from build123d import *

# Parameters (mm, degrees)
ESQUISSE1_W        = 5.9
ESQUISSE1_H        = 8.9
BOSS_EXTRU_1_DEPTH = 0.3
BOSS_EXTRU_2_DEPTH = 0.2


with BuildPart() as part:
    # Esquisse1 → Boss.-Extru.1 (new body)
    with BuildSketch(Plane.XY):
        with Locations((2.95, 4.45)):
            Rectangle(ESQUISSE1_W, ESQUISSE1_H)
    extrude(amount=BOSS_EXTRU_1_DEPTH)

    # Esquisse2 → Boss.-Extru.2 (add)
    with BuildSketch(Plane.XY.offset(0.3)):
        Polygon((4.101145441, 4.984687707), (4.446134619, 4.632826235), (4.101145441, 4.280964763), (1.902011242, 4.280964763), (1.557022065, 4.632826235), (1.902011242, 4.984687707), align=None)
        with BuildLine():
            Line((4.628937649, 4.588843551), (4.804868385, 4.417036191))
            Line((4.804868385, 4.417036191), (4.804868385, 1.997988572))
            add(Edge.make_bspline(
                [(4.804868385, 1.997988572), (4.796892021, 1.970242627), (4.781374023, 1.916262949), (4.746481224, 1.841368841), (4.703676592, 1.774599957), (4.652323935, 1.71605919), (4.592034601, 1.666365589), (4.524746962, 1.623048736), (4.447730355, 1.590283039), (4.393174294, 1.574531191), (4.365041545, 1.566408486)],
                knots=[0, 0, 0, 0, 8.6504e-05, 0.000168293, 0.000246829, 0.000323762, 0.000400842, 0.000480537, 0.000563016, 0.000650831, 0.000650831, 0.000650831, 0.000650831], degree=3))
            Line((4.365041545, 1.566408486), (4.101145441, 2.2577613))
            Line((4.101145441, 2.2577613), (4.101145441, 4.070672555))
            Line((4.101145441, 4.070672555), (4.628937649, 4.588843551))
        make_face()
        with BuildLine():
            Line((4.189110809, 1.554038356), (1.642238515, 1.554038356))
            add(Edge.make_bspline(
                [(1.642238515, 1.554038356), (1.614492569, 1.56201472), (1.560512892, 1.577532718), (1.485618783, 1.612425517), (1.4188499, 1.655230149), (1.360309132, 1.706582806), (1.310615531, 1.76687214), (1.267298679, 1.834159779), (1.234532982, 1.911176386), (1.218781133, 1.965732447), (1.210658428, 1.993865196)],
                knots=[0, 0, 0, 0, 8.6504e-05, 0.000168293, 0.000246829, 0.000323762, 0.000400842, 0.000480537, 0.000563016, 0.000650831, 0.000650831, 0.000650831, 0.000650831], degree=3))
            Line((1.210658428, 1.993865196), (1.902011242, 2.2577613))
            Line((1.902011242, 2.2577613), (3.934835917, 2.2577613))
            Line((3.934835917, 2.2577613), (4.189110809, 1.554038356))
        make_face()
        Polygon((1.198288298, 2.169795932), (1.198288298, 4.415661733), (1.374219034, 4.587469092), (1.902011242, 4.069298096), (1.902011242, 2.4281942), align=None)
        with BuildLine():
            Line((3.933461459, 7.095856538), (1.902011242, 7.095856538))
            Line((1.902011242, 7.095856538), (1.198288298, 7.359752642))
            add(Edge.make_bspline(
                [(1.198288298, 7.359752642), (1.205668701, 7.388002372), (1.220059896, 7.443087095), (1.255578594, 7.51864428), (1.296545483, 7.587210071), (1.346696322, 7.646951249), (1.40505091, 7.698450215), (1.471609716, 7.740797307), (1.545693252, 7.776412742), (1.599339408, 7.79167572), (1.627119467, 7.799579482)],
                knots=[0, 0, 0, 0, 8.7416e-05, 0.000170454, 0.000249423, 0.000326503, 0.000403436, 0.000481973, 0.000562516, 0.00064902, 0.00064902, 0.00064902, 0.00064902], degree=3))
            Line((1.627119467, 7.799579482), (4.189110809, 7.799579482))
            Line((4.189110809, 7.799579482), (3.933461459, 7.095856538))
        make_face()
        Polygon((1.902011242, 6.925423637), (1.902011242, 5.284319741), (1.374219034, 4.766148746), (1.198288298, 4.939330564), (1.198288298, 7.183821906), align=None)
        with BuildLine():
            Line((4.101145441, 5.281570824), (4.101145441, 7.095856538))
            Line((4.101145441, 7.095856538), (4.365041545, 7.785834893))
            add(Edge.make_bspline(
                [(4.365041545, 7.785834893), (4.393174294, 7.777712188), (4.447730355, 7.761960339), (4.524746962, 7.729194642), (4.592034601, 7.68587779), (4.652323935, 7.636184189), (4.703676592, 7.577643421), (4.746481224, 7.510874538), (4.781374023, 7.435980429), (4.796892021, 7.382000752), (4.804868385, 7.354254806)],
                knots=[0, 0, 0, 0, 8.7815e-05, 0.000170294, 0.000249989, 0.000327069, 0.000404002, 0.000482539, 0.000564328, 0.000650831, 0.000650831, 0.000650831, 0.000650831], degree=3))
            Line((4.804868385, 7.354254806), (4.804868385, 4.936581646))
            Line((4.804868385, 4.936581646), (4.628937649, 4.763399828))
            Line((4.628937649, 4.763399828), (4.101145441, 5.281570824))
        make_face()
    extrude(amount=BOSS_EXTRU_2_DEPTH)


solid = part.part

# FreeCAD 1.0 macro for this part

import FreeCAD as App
import Part
import Sketcher
from FreeCAD import Vector

doc = App.newDocument("Part")
body = doc.addObject("PartDesign::Body", "Body")

# Sketch on XY plane
sketch1 = body.newObject("Sketcher::SketchObject", "Sketch")
sketch1.AttachmentSupport = (doc.getObject("XY_Plane"), [""])
sketch1.MapMode = "FlatFace"
sketch1.addGeometry(Part.LineSegment(Vector(0, 9, 0), Vector(0, 0, 0)), False)
sketch1.addGeometry(Part.LineSegment(Vector(0, 0, 0), Vector(6, 0, 0)), False)
sketch1.addGeometry(Part.LineSegment(Vector(6, 0, 0), Vector(6, 9, 0)), False)
sketch1.addGeometry(Part.LineSegment(Vector(6, 9, 0), Vector(0, 9, 0)), False)
sketch1.addConstraint(Sketcher.Constraint("Coincident", 0, 2, 1, 1))
sketch1.addConstraint(Sketcher.Constraint("Coincident", 1, 2, 2, 1))
sketch1.addConstraint(Sketcher.Constraint("Coincident", 2, 2, 3, 1))
sketch1.addConstraint(Sketcher.Constraint("Coincident", 3, 2, 0, 1))
sketch1.addConstraint(Sketcher.Constraint("Vertical", 0))
sketch1.addConstraint(Sketcher.Constraint("Horizontal", 1))
sketch1.addConstraint(Sketcher.Constraint("Vertical", 2))
sketch1.addConstraint(Sketcher.Constraint("Horizontal", 3))
sketch1.addConstraint(Sketcher.Constraint("Coincident", 0, 2, -1, 1))
sketch1.addConstraint(Sketcher.Constraint("DistanceX", 1, 1, 1, 2, 5.9))
sketch1.addConstraint(Sketcher.Constraint("DistanceY", 0, 2, 0, 1, 8.9))
pad1 = body.newObject("PartDesign::Pad", "Pad")
pad1.Profile = sketch1
pad1.Length = 0.3

# Sketch on XY plane
sketch2 = body.newObject("Sketcher::SketchObject", "Sketch001")
sketch2.AttachmentSupport = (doc.getObject("XY_Plane"), [""])
sketch2.MapMode = "FlatFace"
sketch2.AttachmentOffset = App.Placement(Vector(0, 0, 0.3), App.Rotation())
sketch2.addGeometry(Part.LineSegment(Vector(4.446135, 4.632826, 0), Vector(4.101145, 4.984688, 0)), False)
sketch2.addGeometry(Part.LineSegment(Vector(4.101145, 4.984688, 0), Vector(1.902011, 4.984688, 0)), False)
sketch2.addGeometry(Part.LineSegment(Vector(1.902011, 4.984688, 0), Vector(1.557022, 4.632826, 0)), False)
sketch2.addGeometry(Part.LineSegment(Vector(1.557022, 4.632826, 0), Vector(1.902011, 4.280965, 0)), False)
sketch2.addGeometry(Part.LineSegment(Vector(1.902011, 4.280965, 0), Vector(4.101145, 4.280965, 0)), False)
sketch2.addGeometry(Part.LineSegment(Vector(4.101145, 4.280965, 0), Vector(4.446135, 4.632826, 0)), False)
sketch2.addGeometry(Part.LineSegment(Vector(4.804868, 4.417036, 0), Vector(4.628938, 4.588844, 0)), False)
sketch2.addGeometry(Part.LineSegment(Vector(4.628938, 4.588844, 0), Vector(4.101145, 4.070673, 0)), False)
sketch2.addGeometry(Part.LineSegment(Vector(4.101145, 4.070673, 0), Vector(4.101145, 2.257761, 0)), False)
sketch2.addGeometry(Part.LineSegment(Vector(4.101145, 2.257761, 0), Vector(4.365042, 1.566408, 0)), False)
sketch2.addGeometry(Part.BSplineCurve([Vector(4.804868, 1.997989, 0), Vector(4.796892, 1.970243, 0), Vector(4.781374, 1.916263, 0), Vector(4.746481, 1.841369, 0), Vector(4.703677, 1.7746, 0), Vector(4.652324, 1.716059, 0), Vector(4.592035, 1.666366, 0), Vector(4.524747, 1.623049, 0), Vector(4.44773, 1.590283, 0), Vector(4.393174, 1.574531, 0), Vector(4.365042, 1.566408, 0)], [4, 1, 1, 1, 1, 1, 1, 1, 4], [0, 0.000086504, 0.000168293, 0.000246829, 0.000323762, 0.000400842, 0.000480537, 0.000563016, 0.000650831], False, 3, [1, 1, 1, 1, 1, 1, 1, 1, 1, 1, 1], False), False)
sketch2.addGeometry(Part.LineSegment(Vector(4.804868, 1.997989, 0), Vector(4.804868, 4.417036, 0)), False)
sketch2.addGeometry(Part.LineSegment(Vector(1.642239, 1.554038, 0), Vector(4.189111, 1.554038, 0)), False)
sketch2.addGeometry(Part.LineSegment(Vector(4.189111, 1.554038, 0), Vector(3.934836, 2.257761, 0)), False)
sketch2.addGeometry(Part.LineSegment(Vector(3.934836, 2.257761, 0), Vector(1.902011, 2.257761, 0)), False)
sketch2.addGeometry(Part.LineSegment(Vector(1.902011, 2.257761, 0), Vector(1.210658, 1.993865, 0)), False)
sketch2.addGeometry(Part.BSplineCurve([Vector(1.642239, 1.554038, 0), Vector(1.614493, 1.562015, 0), Vector(1.560513, 1.577533, 0), Vector(1.485619, 1.612426, 0), Vector(1.41885, 1.65523, 0), Vector(1.360309, 1.706583, 0), Vector(1.310616, 1.766872, 0), Vector(1.267299, 1.83416, 0), Vector(1.234533, 1.911176, 0), Vector(1.218781, 1.965732, 0), Vector(1.210658, 1.993865, 0)], [4, 1, 1, 1, 1, 1, 1, 1, 4], [0, 0.000086504, 0.000168293, 0.000246829, 0.000323762, 0.000400842, 0.000480537, 0.000563016, 0.000650831], False, 3, [1, 1, 1, 1, 1, 1, 1, 1, 1, 1, 1], False), False)
sketch2.addGeometry(Part.LineSegment(Vector(1.198288, 4.415662, 0), Vector(1.198288, 2.169796, 0)), False)
sketch2.addGeometry(Part.LineSegment(Vector(1.198288, 2.169796, 0), Vector(1.902011, 2.428194, 0)), False)
sketch2.addGeometry(Part.LineSegment(Vector(1.902011, 2.428194, 0), Vector(1.902011, 4.069298, 0)), False)
sketch2.addGeometry(Part.LineSegment(Vector(1.902011, 4.069298, 0), Vector(1.374219, 4.587469, 0)), False)
sketch2.addGeometry(Part.LineSegment(Vector(1.374219, 4.587469, 0), Vector(1.198288, 4.415662, 0)), False)
sketch2.addGeometry(Part.LineSegment(Vector(1.902011, 7.095857, 0), Vector(3.933461, 7.095857, 0)), False)
sketch2.addGeometry(Part.LineSegment(Vector(3.933461, 7.095857, 0), Vector(4.189111, 7.799579, 0)), False)
sketch2.addGeometry(Part.LineSegment(Vector(4.189111, 7.799579, 0), Vector(1.627119, 7.799579, 0)), False)
sketch2.addGeometry(Part.BSplineCurve([Vector(1.198288, 7.359753, 0), Vector(1.205669, 7.388002, 0), Vector(1.22006, 7.443087, 0), Vector(1.255579, 7.518644, 0), Vector(1.296545, 7.58721, 0), Vector(1.346696, 7.646951, 0), Vector(1.405051, 7.69845, 0), Vector(1.47161, 7.740797, 0), Vector(1.545693, 7.776413, 0), Vector(1.599339, 7.791676, 0), Vector(1.627119, 7.799579, 0)], [4, 1, 1, 1, 1, 1, 1, 1, 4], [0, 0.000087416, 0.000170454, 0.000249423, 0.000326503, 0.000403436, 0.000481973, 0.000562516, 0.00064902], False, 3, [1, 1, 1, 1, 1, 1, 1, 1, 1, 1, 1], False), False)
sketch2.addGeometry(Part.LineSegment(Vector(1.198288, 7.359753, 0), Vector(1.902011, 7.095857, 0)), False)
sketch2.addGeometry(Part.LineSegment(Vector(1.902011, 5.28432, 0), Vector(1.902011, 6.925424, 0)), False)
sketch2.addGeometry(Part.LineSegment(Vector(1.902011, 6.925424, 0), Vector(1.198288, 7.183822, 0)), False)
sketch2.addGeometry(Part.LineSegment(Vector(1.198288, 7.183822, 0), Vector(1.198288, 4.939331, 0)), False)
sketch2.addGeometry(Part.LineSegment(Vector(1.198288, 4.939331, 0), Vector(1.374219, 4.766149, 0)), False)
sketch2.addGeometry(Part.LineSegment(Vector(1.374219, 4.766149, 0), Vector(1.902011, 5.28432, 0)), False)
sketch2.addGeometry(Part.LineSegment(Vector(4.101145, 7.095857, 0), Vector(4.101145, 5.281571, 0)), False)
sketch2.addGeometry(Part.LineSegment(Vector(4.101145, 5.281571, 0), Vector(4.628938, 4.7634, 0)), False)
sketch2.addGeometry(Part.LineSegment(Vector(4.628938, 4.7634, 0), Vector(4.804868, 4.936582, 0)), False)
sketch2.addGeometry(Part.LineSegment(Vector(4.804868, 4.936582, 0), Vector(4.804868, 7.354255, 0)), False)
sketch2.addGeometry(Part.BSplineCurve([Vector(4.365042, 7.785835, 0), Vector(4.393174, 7.777712, 0), Vector(4.44773, 7.76196, 0), Vector(4.524747, 7.729195, 0), Vector(4.592035, 7.685878, 0), Vector(4.652324, 7.636184, 0), Vector(4.703677, 7.577643, 0), Vector(4.746481, 7.510875, 0), Vector(4.781374, 7.43598, 0), Vector(4.796892, 7.382001, 0), Vector(4.804868, 7.354255, 0)], [4, 1, 1, 1, 1, 1, 1, 1, 4], [0, 0.000087815, 0.000170294, 0.000249989, 0.000327069, 0.000404002, 0.000482539, 0.000564328, 0.000650831], False, 3, [1, 1, 1, 1, 1, 1, 1, 1, 1, 1, 1], False), False)
sketch2.addGeometry(Part.LineSegment(Vector(4.365042, 7.785835, 0), Vector(4.101145, 7.095857, 0)), False)
sketch2.addConstraint(Sketcher.Constraint("Block", 10))
sketch2.addConstraint(Sketcher.Constraint("Block", 16))
sketch2.addConstraint(Sketcher.Constraint("Block", 25))
sketch2.addConstraint(Sketcher.Constraint("Block", 36))
sketch2.addConstraint(Sketcher.Constraint("Coincident", 0, 2, 1, 1))
sketch2.addConstraint(Sketcher.Constraint("Coincident", 1, 2, 2, 1))
sketch2.addConstraint(Sketcher.Constraint("Coincident", 2, 2, 3, 1))
sketch2.addConstraint(Sketcher.Constraint("Coincident", 3, 2, 4, 1))
sketch2.addConstraint(Sketcher.Constraint("Coincident", 4, 2, 5, 1))
sketch2.addConstraint(Sketcher.Constraint("Coincident", 5, 2, 0, 1))
sketch2.addConstraint(Sketcher.Constraint("Coincident", 6, 2, 7, 1))
sketch2.addConstraint(Sketcher.Constraint("Coincident", 7, 2, 8, 1))
sketch2.addConstraint(Sketcher.Constraint("Coincident", 8, 2, 9, 1))
sketch2.addConstraint(Sketcher.Constraint("Coincident", 9, 2, 10, 2))
sketch2.addConstraint(Sketcher.Constraint("Coincident", 10, 1, 11, 1))
sketch2.addConstraint(Sketcher.Constraint("Coincident", 11, 2, 6, 1))
sketch2.addConstraint(Sketcher.Constraint("Coincident", 12, 2, 13, 1))
sketch2.addConstraint(Sketcher.Constraint("Coincident", 13, 2, 14, 1))
sketch2.addConstraint(Sketcher.Constraint("Coincident", 14, 2, 15, 1))
sketch2.addConstraint(Sketcher.Constraint("Coincident", 15, 2, 16, 2))
sketch2.addConstraint(Sketcher.Constraint("Coincident", 16, 1, 12, 1))
sketch2.addConstraint(Sketcher.Constraint("Coincident", 17, 2, 18, 1))
sketch2.addConstraint(Sketcher.Constraint("Coincident", 18, 2, 19, 1))
sketch2.addConstraint(Sketcher.Constraint("Coincident", 19, 2, 20, 1))
sketch2.addConstraint(Sketcher.Constraint("Coincident", 20, 2, 21, 1))
sketch2.addConstraint(Sketcher.Constraint("Coincident", 21, 2, 17, 1))
sketch2.addConstraint(Sketcher.Constraint("Coincident", 22, 2, 23, 1))
sketch2.addConstraint(Sketcher.Constraint("Coincident", 23, 2, 24, 1))
sketch2.addConstraint(Sketcher.Constraint("Coincident", 24, 2, 25, 2))
sketch2.addConstraint(Sketcher.Constraint("Coincident", 25, 1, 26, 1))
sketch2.addConstraint(Sketcher.Constraint("Coincident", 26, 2, 22, 1))
sketch2.addConstraint(Sketcher.Constraint("Coincident", 27, 2, 28, 1))
sketch2.addConstraint(Sketcher.Constraint("Coincident", 28, 2, 29, 1))
sketch2.addConstraint(Sketcher.Constraint("Coincident", 29, 2, 30, 1))
sketch2.addConstraint(Sketcher.Constraint("Coincident", 30, 2, 31, 1))
sketch2.addConstraint(Sketcher.Constraint("Coincident", 31, 2, 27, 1))
sketch2.addConstraint(Sketcher.Constraint("Coincident", 32, 2, 33, 1))
sketch2.addConstraint(Sketcher.Constraint("Coincident", 33, 2, 34, 1))
sketch2.addConstraint(Sketcher.Constraint("Coincident", 34, 2, 35, 1))
sketch2.addConstraint(Sketcher.Constraint("Coincident", 35, 2, 36, 2))
sketch2.addConstraint(Sketcher.Constraint("Coincident", 36, 1, 37, 1))
sketch2.addConstraint(Sketcher.Constraint("Coincident", 37, 2, 32, 1))
sketch2.addConstraint(Sketcher.Constraint("Horizontal", 1))
sketch2.addConstraint(Sketcher.Constraint("Horizontal", 4))
sketch2.addConstraint(Sketcher.Constraint("Vertical", 8))
sketch2.addConstraint(Sketcher.Constraint("Vertical", 11))
sketch2.addConstraint(Sketcher.Constraint("Horizontal", 12))
sketch2.addConstraint(Sketcher.Constraint("Horizontal", 14))
sketch2.addConstraint(Sketcher.Constraint("Vertical", 17))
sketch2.addConstraint(Sketcher.Constraint("Vertical", 19))
sketch2.addConstraint(Sketcher.Constraint("Horizontal", 22))
sketch2.addConstraint(Sketcher.Constraint("Horizontal", 24))
sketch2.addConstraint(Sketcher.Constraint("Vertical", 27))
sketch2.addConstraint(Sketcher.Constraint("Vertical", 29))
sketch2.addConstraint(Sketcher.Constraint("Vertical", 32))
sketch2.addConstraint(Sketcher.Constraint("Vertical", 35))
sketch2.addConstraint(Sketcher.Constraint("DistanceX", 22, 1, 22, 2, 2.03145))
sketch2.addConstraint(Sketcher.Constraint("DistanceX", 24, 2, 24, 1, 2.561991))
sketch2.addConstraint(Sketcher.Constraint("DistanceY", 8, 2, 8, 1, 1.812911))
sketch2.addConstraint(Sketcher.Constraint("DistanceY", 29, 2, 29, 1, 2.244491))
sketch2.addConstraint(Sketcher.Constraint("DistanceY", -1, 1, 19, 2, 4.069298))
sketch2.addConstraint(Sketcher.Constraint("DistanceY", -1, 1, 33, 2, 4.7634))
sketch2.addConstraint(Sketcher.Constraint("DistanceX", 14, 2, 12, 2, 2.2871))
sketch2.addConstraint(Sketcher.Constraint("DistanceY", 15, 2, 3, 2, 2.2871))
sketch2.addConstraint(Sketcher.Constraint("DistanceY", 17, 2, 18, 2, 0.258398))
sketch2.addConstraint(Sketcher.Constraint("DistanceX", 20, 2, 24, 2, 0.2529))
sketch2.addConstraint(Sketcher.Constraint("DistanceX", 26, 2, 23, 2, 2.2871))
sketch2.addConstraint(Sketcher.Constraint("DistanceY", 27, 2, 28, 2, 0.258398))
sketch2.addConstraint(Sketcher.Constraint("DistanceY", 22, 2, 35, 2, 0.258398))
sketch2.addConstraint(Sketcher.Constraint("DistanceY", 37, 2, 35, 2, 0.258398))
sketch2.addConstraint(Sketcher.Constraint("Distance", 0, 0.492772))
sketch2.addConstraint(Sketcher.Constraint("Distance", 2, 0.492772))
sketch2.addConstraint(Sketcher.Constraint("Distance", 3, 0.492772))
sketch2.addConstraint(Sketcher.Constraint("Distance", 5, 0.492772))
sketch2.addConstraint(Sketcher.Constraint("Distance", 7, 0.739639))
sketch2.addConstraint(Sketcher.Constraint("Distance", 20, 0.739639))
sketch2.addConstraint(Sketcher.Constraint("Distance", 31, 0.739639))
sketch2.addConstraint(Sketcher.Constraint("Distance", 33, 0.739639))
sketch2.addConstraint(Sketcher.Constraint("DistanceX", 1, 2, 1, 1, 2.199134))
sketch2.addConstraint(Sketcher.Constraint("DistanceX", 4, 1, 4, 2, 2.199134))
sketch2.addConstraint(Sketcher.Constraint("DistanceX", 12, 1, 12, 2, 2.546872))
sketch2.addConstraint(Sketcher.Constraint("DistanceX", 14, 2, 14, 1, 2.032825))
sketch2.addConstraint(Sketcher.Constraint("DistanceY", 11, 1, 11, 2, 2.419048))
sketch2.addConstraint(Sketcher.Constraint("DistanceY", 17, 2, 17, 1, 2.245866))
sketch2.addConstraint(Sketcher.Constraint("DistanceY", 19, 1, 19, 2, 1.641104))
sketch2.addConstraint(Sketcher.Constraint("DistanceY", 27, 1, 27, 2, 1.641104))
sketch2.addConstraint(Sketcher.Constraint("DistanceY", 32, 2, 32, 1, 1.814286))
sketch2.addConstraint(Sketcher.Constraint("DistanceY", 35, 1, 35, 2, 2.417673))
sketch2.addConstraint(Sketcher.Constraint("DistanceX", -1, 1, 1, 2, 1.902011))
sketch2.addConstraint(Sketcher.Constraint("DistanceX", -1, 1, 3, 2, 1.902011))
sketch2.addConstraint(Sketcher.Constraint("DistanceY", -1, 1, 8, 2, 2.257761))
sketch2.addConstraint(Sketcher.Constraint("DistanceY", -1, 1, 13, 2, 2.257761))
sketch2.addConstraint(Sketcher.Constraint("DistanceX", -1, 1, 17, 2, 1.198288))
sketch2.addConstraint(Sketcher.Constraint("DistanceX", -1, 1, 18, 2, 1.902011))
sketch2.addConstraint(Sketcher.Constraint("DistanceX", -1, 1, 27, 2, 1.902011))
sketch2.addConstraint(Sketcher.Constraint("DistanceX", -1, 1, 28, 2, 1.198288))
sketch2.addConstraint(Sketcher.Constraint("DistanceY", -1, 1, 28, 2, 7.183822))
sketch2.addConstraint(Sketcher.Constraint("DistanceX", -1, 1, 30, 2, 1.374219))
sketch2.addConstraint(Sketcher.Constraint("DistanceX", 2, 2, 1, 2, 0.344989))
sketch2.addConstraint(Sketcher.Constraint("DistanceY", 4, 2, 6, 2, 0.307879))
sketch2.addConstraint(Sketcher.Constraint("DistanceX", 7, 2, 5, 2, 0.344989))
sketch2.addConstraint(Sketcher.Constraint("DistanceX", 32, 2, 5, 2, 0.344989))
pad2 = body.newObject("PartDesign::Pad", "Pad001")
pad2.Profile = sketch2
pad2.Length = 0.2

doc.recompute()
